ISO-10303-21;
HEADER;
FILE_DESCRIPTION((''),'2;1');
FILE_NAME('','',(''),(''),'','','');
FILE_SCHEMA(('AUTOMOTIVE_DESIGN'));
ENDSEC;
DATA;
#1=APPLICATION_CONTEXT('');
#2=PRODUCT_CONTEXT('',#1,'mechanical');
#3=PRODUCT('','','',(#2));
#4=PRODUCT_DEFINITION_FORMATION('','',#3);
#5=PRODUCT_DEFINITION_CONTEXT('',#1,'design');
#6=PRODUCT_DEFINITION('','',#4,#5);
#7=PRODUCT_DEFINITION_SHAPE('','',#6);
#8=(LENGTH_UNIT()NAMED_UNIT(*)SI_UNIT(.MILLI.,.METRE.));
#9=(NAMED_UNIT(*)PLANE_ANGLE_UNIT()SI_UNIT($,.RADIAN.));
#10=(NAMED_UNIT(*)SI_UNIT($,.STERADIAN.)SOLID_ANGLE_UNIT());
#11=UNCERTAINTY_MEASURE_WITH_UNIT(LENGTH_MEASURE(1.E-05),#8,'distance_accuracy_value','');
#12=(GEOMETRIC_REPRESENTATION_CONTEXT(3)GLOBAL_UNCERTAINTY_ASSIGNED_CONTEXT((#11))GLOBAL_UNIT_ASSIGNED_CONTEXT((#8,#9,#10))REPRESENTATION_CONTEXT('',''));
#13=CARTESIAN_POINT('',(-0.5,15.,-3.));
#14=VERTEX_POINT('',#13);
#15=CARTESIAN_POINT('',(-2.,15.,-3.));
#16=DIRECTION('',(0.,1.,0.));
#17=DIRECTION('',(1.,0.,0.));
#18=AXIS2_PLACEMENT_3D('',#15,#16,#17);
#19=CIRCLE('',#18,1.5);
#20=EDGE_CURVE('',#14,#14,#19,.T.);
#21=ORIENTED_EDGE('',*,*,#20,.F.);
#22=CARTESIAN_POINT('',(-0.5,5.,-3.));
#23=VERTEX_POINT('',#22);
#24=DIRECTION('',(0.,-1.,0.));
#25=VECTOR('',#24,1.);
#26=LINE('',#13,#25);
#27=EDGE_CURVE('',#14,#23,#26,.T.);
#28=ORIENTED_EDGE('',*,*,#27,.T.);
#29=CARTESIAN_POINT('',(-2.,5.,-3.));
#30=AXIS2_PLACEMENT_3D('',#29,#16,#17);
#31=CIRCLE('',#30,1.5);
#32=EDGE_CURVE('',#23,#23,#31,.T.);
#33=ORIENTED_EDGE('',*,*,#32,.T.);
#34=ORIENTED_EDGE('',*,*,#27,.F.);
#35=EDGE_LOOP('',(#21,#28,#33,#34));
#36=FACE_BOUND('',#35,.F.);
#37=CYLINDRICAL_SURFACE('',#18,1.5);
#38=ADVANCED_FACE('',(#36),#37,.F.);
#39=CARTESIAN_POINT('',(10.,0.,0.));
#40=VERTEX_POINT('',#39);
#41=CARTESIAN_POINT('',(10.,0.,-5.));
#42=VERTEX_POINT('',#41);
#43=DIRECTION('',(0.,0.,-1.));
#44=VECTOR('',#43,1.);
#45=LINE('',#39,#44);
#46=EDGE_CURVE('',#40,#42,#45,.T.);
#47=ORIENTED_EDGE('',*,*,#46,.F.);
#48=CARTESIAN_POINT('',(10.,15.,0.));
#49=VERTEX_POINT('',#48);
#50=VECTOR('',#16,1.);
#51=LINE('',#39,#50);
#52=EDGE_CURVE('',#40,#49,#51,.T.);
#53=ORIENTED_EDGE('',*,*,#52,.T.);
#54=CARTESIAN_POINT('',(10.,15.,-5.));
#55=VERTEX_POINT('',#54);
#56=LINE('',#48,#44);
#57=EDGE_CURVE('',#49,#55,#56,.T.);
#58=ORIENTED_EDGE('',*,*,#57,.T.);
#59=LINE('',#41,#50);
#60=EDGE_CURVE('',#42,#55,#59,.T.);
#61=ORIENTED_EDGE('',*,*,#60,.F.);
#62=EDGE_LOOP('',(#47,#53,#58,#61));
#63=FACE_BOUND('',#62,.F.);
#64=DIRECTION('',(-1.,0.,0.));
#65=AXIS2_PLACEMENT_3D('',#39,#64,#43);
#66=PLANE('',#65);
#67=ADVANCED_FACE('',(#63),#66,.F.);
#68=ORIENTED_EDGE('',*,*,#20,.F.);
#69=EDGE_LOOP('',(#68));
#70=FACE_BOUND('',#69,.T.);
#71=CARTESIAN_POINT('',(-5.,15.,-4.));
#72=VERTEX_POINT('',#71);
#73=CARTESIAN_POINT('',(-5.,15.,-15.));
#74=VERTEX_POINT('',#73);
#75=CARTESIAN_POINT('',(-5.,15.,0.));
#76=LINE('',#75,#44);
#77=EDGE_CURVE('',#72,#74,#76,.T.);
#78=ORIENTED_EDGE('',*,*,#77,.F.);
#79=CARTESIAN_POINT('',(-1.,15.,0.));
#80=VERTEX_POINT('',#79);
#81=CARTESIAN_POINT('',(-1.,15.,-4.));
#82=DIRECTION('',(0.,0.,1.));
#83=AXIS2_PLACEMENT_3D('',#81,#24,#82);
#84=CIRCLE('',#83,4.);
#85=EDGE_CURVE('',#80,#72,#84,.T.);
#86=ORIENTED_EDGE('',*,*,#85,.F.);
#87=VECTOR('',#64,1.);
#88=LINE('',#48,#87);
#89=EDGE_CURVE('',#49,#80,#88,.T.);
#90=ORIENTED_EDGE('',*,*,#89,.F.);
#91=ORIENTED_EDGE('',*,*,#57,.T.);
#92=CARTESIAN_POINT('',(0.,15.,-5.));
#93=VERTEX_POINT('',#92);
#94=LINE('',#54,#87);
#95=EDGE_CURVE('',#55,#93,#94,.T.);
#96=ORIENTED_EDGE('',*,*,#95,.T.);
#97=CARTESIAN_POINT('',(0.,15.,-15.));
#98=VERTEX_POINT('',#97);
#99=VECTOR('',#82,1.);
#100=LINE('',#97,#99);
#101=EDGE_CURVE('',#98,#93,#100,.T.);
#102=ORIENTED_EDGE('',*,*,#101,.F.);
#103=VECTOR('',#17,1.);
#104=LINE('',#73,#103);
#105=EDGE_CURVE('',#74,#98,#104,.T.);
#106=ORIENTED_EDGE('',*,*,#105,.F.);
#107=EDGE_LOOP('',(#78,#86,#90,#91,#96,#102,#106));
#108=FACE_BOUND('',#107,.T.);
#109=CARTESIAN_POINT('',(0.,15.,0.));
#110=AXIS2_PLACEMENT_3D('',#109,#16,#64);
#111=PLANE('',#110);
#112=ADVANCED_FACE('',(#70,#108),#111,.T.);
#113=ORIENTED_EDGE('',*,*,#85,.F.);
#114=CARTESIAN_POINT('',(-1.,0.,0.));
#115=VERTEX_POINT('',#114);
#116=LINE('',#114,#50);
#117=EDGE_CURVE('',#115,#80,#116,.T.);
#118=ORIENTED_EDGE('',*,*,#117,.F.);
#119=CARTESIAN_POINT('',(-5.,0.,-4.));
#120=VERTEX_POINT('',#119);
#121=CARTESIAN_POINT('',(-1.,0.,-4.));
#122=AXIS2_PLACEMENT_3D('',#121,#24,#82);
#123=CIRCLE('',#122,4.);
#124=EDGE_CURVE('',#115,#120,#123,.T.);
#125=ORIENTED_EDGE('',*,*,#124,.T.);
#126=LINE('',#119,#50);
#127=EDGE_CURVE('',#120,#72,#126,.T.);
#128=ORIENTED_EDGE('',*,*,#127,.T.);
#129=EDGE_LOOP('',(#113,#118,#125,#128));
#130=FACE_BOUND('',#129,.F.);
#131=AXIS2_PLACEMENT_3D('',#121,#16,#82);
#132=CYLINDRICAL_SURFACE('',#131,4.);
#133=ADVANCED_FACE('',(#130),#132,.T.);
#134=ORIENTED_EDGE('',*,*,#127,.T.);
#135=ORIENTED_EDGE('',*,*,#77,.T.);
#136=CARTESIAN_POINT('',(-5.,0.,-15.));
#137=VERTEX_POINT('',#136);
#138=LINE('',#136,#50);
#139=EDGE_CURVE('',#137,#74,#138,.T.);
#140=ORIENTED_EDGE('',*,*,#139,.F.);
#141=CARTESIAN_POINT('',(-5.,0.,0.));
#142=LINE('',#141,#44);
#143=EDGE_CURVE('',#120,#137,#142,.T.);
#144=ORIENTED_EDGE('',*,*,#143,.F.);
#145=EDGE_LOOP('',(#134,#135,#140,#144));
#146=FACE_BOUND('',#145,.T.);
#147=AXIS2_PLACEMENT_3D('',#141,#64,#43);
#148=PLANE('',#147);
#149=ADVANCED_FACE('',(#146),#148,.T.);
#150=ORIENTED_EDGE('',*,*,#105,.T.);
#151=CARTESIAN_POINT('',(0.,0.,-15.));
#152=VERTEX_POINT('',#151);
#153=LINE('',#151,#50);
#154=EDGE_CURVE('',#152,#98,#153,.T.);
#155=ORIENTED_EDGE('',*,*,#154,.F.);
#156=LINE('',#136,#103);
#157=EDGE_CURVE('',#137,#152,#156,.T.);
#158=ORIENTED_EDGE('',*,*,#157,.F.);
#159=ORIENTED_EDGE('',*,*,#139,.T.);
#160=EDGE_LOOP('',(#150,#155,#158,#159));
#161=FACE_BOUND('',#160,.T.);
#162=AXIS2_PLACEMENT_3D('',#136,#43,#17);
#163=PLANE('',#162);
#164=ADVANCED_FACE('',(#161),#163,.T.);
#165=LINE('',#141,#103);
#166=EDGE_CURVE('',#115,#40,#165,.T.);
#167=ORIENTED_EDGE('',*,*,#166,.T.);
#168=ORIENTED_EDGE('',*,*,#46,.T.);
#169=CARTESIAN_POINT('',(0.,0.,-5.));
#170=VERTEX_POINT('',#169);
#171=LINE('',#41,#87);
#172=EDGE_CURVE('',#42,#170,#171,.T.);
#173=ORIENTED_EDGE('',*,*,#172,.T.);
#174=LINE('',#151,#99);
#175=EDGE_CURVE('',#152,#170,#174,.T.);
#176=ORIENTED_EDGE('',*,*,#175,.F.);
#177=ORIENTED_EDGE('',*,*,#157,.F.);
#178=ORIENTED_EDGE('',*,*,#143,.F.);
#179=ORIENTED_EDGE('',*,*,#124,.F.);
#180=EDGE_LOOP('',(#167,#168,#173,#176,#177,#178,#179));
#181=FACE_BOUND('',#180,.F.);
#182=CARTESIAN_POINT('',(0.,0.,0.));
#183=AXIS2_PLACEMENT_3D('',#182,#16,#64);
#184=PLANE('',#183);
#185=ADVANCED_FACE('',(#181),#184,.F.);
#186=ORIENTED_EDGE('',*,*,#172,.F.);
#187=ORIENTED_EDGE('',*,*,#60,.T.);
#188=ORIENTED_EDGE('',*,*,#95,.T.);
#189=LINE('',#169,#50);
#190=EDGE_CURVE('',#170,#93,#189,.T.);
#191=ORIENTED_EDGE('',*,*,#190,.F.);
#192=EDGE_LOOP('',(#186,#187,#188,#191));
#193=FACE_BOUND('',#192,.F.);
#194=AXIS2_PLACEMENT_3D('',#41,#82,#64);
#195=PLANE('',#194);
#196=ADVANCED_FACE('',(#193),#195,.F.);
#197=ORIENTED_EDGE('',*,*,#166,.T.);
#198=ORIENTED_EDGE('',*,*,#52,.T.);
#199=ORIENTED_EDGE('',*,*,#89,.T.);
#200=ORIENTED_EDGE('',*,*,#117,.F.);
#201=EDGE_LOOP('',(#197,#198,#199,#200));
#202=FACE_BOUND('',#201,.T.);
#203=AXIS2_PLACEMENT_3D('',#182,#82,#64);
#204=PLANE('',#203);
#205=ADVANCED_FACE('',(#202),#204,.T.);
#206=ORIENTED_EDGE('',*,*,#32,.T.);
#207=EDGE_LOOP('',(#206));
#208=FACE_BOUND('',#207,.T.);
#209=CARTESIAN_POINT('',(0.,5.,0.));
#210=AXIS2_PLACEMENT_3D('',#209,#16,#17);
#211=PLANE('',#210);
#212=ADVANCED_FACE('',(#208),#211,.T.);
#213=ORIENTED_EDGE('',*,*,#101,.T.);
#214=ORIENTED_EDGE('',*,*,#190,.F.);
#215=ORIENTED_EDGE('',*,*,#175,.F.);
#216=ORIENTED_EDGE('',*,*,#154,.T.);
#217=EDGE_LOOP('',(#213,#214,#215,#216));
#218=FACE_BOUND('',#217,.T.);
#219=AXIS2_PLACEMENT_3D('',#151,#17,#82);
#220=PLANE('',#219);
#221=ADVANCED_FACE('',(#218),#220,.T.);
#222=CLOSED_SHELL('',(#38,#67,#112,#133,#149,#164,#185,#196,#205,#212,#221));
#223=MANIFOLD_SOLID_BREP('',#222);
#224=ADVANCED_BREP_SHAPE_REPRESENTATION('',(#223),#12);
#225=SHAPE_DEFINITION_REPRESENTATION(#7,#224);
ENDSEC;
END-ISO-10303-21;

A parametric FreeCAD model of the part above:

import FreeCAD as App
import Part
import Sketcher


def edges_at(feature, points):
    """Names of the edges that pass closest to the given points."""
    edges = feature.Shape.Edges
    near = lambda p: min(range(len(edges)), key=lambda i: edges[i].distToShape(Part.Vertex(*p))[0])
    return sorted({f"Edge{near(p) + 1}" for p in points})


def add_polygon(sketch, points):
    """Adds a closed chain of lines whose ends are joined by coincident constraints."""
    first, n = sketch.GeometryCount, len(points)
    for a, b in zip(points, points[1:] + points[:1]):
        sketch.addGeometry(Part.LineSegment(App.Vector(*a, 0), App.Vector(*b, 0)), False)
    for i in range(n):
        sketch.addConstraint(Sketcher.Constraint("Coincident", first + i, 2, first + (i + 1) % n, 1))

doc = App.newDocument("Part")
body = doc.addObject("PartDesign::Body", "Body")

# Sketch on XZ plane
sketch1 = body.newObject("Sketcher::SketchObject", "Sketch")
sketch1.AttachmentSupport = (doc.getObject("XZ_Plane"), [""])
sketch1.MapMode = "FlatFace"
add_polygon(sketch1, [(-5, 0), (10, 0), (10, -5), (0, -5), (0, -15), (-5, -15)])  # lines 0-5
sketch1.addConstraint(Sketcher.Constraint("Horizontal", 0))
sketch1.addConstraint(Sketcher.Constraint("Vertical", 1))
sketch1.addConstraint(Sketcher.Constraint("Horizontal", 2))
sketch1.addConstraint(Sketcher.Constraint("Vertical", 3))
sketch1.addConstraint(Sketcher.Constraint("Horizontal", 4))
sketch1.addConstraint(Sketcher.Constraint("Vertical", 5))
sketch1.addConstraint(Sketcher.Constraint("PointOnObject", 0, 2, -1))
sketch1.addConstraint(Sketcher.Constraint("PointOnObject", 2, 2, -2))
sketch1.addConstraint(Sketcher.Constraint("Equal", 4, 1))
sketch1.addConstraint(Sketcher.Constraint("Equal", 2, 3))
sketch1.addConstraint(Sketcher.Constraint("DistanceX", 0, 1, 0, 2, 15.0))
sketch1.addConstraint(Sketcher.Constraint("DistanceX", 2, 2, 2, 1, 10.0))
pad1 = body.newObject("PartDesign::Pad", "Pad")
pad1.Profile = sketch1
pad1.Length = 15
pad1.Reversed = True
doc.recompute()

fillet = body.newObject("PartDesign::Fillet", "Fillet")
fillet.Base = (pad1, edges_at(pad1, [(-5, 7.5, 0)]))
fillet.Radius = 4

# Sketch on XZ plane
sketch2 = body.newObject("Sketcher::SketchObject", "Sketch001")
sketch2.AttachmentSupport = (doc.getObject("XZ_Plane"), [""])
sketch2.MapMode = "FlatFace"
sketch2.AttachmentOffset = App.Placement(App.Vector(0, 0, -15), App.Rotation())
sketch2.addGeometry(Part.Circle(App.Vector(-2, -3, 0), App.Vector(0, 0, 1), 1.5), False)
sketch2.addConstraint(Sketcher.Constraint("Diameter", 0, 3.0))
sketch2.addConstraint(Sketcher.Constraint("DistanceY", 0, 3, -1, 1, 3.0))
sketch2.addConstraint(Sketcher.Constraint("DistanceX", 0, 3, -1, 1, 2.0))
pocket1 = body.newObject("PartDesign::Pocket", "Pocket")
pocket1.Profile = sketch2
pocket1.Length = 10
pocket1.Reversed = True

doc.recompute()
